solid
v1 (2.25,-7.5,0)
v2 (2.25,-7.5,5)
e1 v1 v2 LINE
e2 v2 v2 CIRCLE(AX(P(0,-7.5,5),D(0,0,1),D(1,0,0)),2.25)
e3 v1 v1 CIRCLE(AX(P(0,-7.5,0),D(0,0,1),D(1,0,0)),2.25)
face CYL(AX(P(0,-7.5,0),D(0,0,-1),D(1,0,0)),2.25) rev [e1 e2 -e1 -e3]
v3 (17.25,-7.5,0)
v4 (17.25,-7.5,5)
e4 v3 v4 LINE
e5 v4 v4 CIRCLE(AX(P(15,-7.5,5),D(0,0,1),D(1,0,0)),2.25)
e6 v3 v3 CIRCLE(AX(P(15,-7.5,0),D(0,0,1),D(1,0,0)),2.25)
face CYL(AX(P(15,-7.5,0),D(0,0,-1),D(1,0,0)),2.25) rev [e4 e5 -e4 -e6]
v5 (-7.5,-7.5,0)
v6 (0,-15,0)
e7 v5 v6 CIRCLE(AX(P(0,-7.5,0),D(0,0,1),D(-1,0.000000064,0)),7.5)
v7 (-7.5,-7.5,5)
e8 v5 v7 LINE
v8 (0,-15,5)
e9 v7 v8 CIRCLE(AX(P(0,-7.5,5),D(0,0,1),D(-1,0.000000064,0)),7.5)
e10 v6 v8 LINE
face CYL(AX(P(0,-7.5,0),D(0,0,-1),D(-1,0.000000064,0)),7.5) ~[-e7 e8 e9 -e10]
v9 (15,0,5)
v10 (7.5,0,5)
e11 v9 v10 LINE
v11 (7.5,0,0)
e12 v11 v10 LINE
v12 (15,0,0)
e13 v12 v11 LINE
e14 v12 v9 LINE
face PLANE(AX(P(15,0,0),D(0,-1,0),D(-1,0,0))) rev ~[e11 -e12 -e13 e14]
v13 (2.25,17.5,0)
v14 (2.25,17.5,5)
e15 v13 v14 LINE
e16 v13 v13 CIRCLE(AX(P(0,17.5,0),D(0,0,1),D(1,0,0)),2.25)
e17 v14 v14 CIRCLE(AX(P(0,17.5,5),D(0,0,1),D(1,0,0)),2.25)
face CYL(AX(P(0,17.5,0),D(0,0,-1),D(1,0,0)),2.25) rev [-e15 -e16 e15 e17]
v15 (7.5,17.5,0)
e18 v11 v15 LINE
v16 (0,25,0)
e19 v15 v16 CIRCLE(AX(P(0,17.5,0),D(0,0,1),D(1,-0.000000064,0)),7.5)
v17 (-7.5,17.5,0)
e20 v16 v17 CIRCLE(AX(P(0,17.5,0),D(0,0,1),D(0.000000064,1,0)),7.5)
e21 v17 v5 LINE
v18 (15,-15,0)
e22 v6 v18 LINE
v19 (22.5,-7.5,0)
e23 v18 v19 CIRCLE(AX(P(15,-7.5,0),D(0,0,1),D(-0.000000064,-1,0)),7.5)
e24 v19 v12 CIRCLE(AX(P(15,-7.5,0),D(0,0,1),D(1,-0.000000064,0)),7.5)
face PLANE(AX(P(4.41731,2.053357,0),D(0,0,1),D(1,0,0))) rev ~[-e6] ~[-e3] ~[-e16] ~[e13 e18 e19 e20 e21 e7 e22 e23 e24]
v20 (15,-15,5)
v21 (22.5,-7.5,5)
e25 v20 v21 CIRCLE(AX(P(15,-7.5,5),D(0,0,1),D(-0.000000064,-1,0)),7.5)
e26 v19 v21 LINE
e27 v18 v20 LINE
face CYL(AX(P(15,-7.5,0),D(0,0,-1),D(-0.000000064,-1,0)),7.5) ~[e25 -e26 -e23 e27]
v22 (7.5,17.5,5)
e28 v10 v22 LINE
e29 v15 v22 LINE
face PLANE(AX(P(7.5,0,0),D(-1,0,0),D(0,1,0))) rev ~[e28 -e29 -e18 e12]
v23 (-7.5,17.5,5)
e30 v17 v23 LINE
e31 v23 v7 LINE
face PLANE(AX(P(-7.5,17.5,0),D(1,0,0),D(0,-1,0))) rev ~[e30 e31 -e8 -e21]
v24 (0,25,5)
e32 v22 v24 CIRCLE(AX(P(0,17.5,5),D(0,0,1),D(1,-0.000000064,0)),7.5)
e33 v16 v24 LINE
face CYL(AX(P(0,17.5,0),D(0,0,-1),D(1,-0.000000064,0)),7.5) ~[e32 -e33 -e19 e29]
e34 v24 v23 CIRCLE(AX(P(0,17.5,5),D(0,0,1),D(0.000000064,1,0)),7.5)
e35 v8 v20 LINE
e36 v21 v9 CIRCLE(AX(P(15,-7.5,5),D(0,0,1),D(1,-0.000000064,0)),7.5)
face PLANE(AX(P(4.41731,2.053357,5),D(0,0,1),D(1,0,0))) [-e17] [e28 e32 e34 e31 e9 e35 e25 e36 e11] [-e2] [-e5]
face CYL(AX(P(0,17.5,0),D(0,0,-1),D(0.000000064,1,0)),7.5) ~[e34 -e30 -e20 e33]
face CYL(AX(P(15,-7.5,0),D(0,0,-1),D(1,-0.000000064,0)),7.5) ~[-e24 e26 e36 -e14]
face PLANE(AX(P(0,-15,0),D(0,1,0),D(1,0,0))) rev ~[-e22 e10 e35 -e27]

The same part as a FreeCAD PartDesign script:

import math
import FreeCAD as App
import Part
import Sketcher
from FreeCAD import Vector

doc = App.newDocument("Part")
params = doc.addObject("Spreadsheet::Sheet", "Params")
for row, (alias, value) in enumerate([
    ("sketch1_diameter", "4.5 mm"),
    ("sketch1_radius", "7.5 mm"),
    ("sketch1_width", "15 mm"),
    ("sketch1_height", "25 mm"),
    ("pad1_length", "5 mm"),
], start=1):
    params.set(f"A{row}", alias)
    params.set(f"B{row}", "=" + value)
    params.setAlias(f"B{row}", alias)

body = doc.addObject("PartDesign::Body", "Body")

# Sketch on XY plane
sketch1 = body.newObject("Sketcher::SketchObject", "Sketch")
sketch1.AttachmentSupport = (doc.getObject("XY_Plane"), [""])
sketch1.MapMode = "FlatFace"
sketch1.addGeometry(Part.ArcOfCircle(Part.Circle(Vector(0, 17.5, 0), Vector(0, 0, 1), 7.5), math.radians(90), math.radians(180)), False)
sketch1.addGeometry(Part.LineSegment(Vector(-7.5, 17.5, 0), Vector(-7.5, -7.5, 0)), False)
sketch1.addGeometry(Part.ArcOfCircle(Part.Circle(Vector(0, -7.5, 0), Vector(0, 0, 1), 7.5), math.radians(180), math.radians(270)), False)
sketch1.addGeometry(Part.LineSegment(Vector(0, -15, 0), Vector(15, -15, 0)), False)
sketch1.addGeometry(Part.ArcOfCircle(Part.Circle(Vector(15, -7.5, 0), Vector(0, 0, 1), 7.5), math.radians(-90), math.radians(0)), False)
sketch1.addGeometry(Part.ArcOfCircle(Part.Circle(Vector(15, -7.5, 0), Vector(0, 0, 1), 7.5), math.radians(0), math.radians(90)), False)
sketch1.addGeometry(Part.LineSegment(Vector(15, 0, 0), Vector(7.5, 0, 0)), False)
sketch1.addGeometry(Part.LineSegment(Vector(7.5, 0, 0), Vector(7.5, 17.5, 0)), False)
sketch1.addGeometry(Part.ArcOfCircle(Part.Circle(Vector(0, 17.5, 0), Vector(0, 0, 1), 7.5), math.radians(0), math.radians(90)), False)
sketch1.addGeometry(Part.Circle(Vector(0, -7.5, 0), Vector(0, 0, 1), 2.2), False)
sketch1.addGeometry(Part.Circle(Vector(15, -7.5, 0), Vector(0, 0, 1), 2.2), False)
sketch1.addGeometry(Part.Circle(Vector(0, 17.5, 0), Vector(0, 0, 1), 2.2), False)
sketch1.addConstraint(Sketcher.Constraint("Tangent", 0, 2, 1, 1))
sketch1.addConstraint(Sketcher.Constraint("Tangent", 1, 2, 2, 1))
sketch1.addConstraint(Sketcher.Constraint("Tangent", 2, 2, 3, 1))
sketch1.addConstraint(Sketcher.Constraint("Tangent", 3, 2, 4, 1))
sketch1.addConstraint(Sketcher.Constraint("Tangent", 4, 2, 5, 1))
sketch1.addConstraint(Sketcher.Constraint("Tangent", 5, 2, 6, 1))
sketch1.addConstraint(Sketcher.Constraint("Coincident", 6, 2, 7, 1))
sketch1.addConstraint(Sketcher.Constraint("Tangent", 7, 2, 8, 1))
sketch1.addConstraint(Sketcher.Constraint("Tangent", 8, 2, 0, 1))
sketch1.addConstraint(Sketcher.Constraint("Vertical", 1))
sketch1.addConstraint(Sketcher.Constraint("Horizontal", 3))
sketch1.addConstraint(Sketcher.Constraint("Horizontal", 6))
sketch1.addConstraint(Sketcher.Constraint("Vertical", 7))
sketch1.addConstraint(Sketcher.Constraint("Coincident", 9, 3, 2, 3))
sketch1.addConstraint(Sketcher.Constraint("Coincident", 10, 3, 4, 3))
sketch1.addConstraint(Sketcher.Constraint("Coincident", 11, 3, 0, 3))
sketch1.addConstraint(Sketcher.Constraint("Equal", 0, 2))
sketch1.addConstraint(Sketcher.Constraint("Equal", 2, 4))
sketch1.addConstraint(Sketcher.Constraint("Equal", 4, 5))
sketch1.addConstraint(Sketcher.Constraint("Equal", 5, 8))
sketch1.addConstraint(Sketcher.Constraint("Equal", 9, 10))
sketch1.addConstraint(Sketcher.Constraint("Equal", 10, 11))
sketch1.addConstraint(Sketcher.Constraint("PointOnObject", 0, 3, -2))
sketch1.addConstraint(Sketcher.Constraint("PointOnObject", 5, 2, -1))
sketch1.addConstraint(Sketcher.Constraint("PointOnObject", 8, 2, -2))
sketch1.addConstraint(Sketcher.Constraint("Horizontal", 1, 2, 4, 2))
sketch1.addConstraint(Sketcher.Constraint("Diameter", 9, 4.5))
sketch1.addConstraint(Sketcher.Constraint("Radius", 0, 7.5))
sketch1.addConstraint(Sketcher.Constraint("DistanceX", 3, 1, 3, 2, 15.0))
sketch1.addConstraint(Sketcher.Constraint("DistanceY", 1, 2, 1, 1, 25.0))
sketch1.setExpression("Constraints[26]", "Params.sketch1_diameter")
sketch1.setExpression("Constraints[27]", "Params.sketch1_radius")
sketch1.setExpression("Constraints[28]", "Params.sketch1_width")
sketch1.setExpression("Constraints[29]", "Params.sketch1_height")
pad1 = body.newObject("PartDesign::Pad", "Pad")
pad1.Profile = sketch1
pad1.setExpression("Length", "Params.pad1_length")

doc.recompute()
